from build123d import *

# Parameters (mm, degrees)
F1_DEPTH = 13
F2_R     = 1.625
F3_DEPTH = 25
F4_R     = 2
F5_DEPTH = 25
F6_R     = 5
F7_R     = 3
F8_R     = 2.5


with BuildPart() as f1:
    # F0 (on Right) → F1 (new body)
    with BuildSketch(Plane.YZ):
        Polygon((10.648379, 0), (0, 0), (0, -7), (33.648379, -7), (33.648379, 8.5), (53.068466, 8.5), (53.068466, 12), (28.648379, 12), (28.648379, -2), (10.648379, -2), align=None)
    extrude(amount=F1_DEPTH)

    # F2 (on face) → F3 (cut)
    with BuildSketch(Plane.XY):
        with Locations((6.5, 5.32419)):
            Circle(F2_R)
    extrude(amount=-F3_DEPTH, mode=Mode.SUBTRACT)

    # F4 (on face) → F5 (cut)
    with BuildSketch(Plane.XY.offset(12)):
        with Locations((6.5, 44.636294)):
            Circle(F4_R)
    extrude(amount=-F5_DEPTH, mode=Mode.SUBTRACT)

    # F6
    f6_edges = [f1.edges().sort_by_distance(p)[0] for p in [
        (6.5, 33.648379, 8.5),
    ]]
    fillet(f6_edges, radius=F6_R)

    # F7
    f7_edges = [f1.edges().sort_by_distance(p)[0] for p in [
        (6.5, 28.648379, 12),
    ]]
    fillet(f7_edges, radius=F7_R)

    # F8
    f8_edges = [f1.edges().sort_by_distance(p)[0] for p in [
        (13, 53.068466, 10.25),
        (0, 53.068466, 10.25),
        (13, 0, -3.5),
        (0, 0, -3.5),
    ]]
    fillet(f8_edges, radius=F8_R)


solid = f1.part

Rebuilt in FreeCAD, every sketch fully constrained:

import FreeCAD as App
import Part
import Sketcher
Q = App.Units.Quantity


def edges_at(feature, points):
    """Names of the edges that pass closest to the given points."""
    edges = feature.Shape.Edges
    near = lambda p: min(range(len(edges)), key=lambda i: edges[i].distToShape(Part.Vertex(*p))[0])
    return sorted({f"Edge{near(p) + 1}" for p in points})

doc = App.newDocument("Part")
body = doc.addObject("PartDesign::Body", "Body")

sketch1 = body.newObject("Sketcher::SketchObject", "Sketch")
sketch1.AttachmentSupport = (doc.getObject("YZ_Plane"), [""])
sketch1.MapMode = "FlatFace"
sketch1.addGeometry([
    Part.LineSegment(App.Vector(10.648379, 0, 0), App.Vector(0, 0, 0)),
    Part.LineSegment(App.Vector(0, 0, 0), App.Vector(0, -7, 0)),
    Part.LineSegment(App.Vector(0, -7, 0), App.Vector(33.648379, -7, 0)),
    Part.LineSegment(App.Vector(33.648379, -7, 0), App.Vector(33.648379, 8.5, 0)),
    Part.LineSegment(App.Vector(33.648379, 8.5, 0), App.Vector(53.068466, 8.5, 0)),
    Part.LineSegment(App.Vector(53.068466, 8.5, 0), App.Vector(53.068466, 12, 0)),
    Part.LineSegment(App.Vector(53.068466, 12, 0), App.Vector(28.648379, 12, 0)),
    Part.LineSegment(App.Vector(28.648379, 12, 0), App.Vector(28.648379, -2, 0)),
    Part.LineSegment(App.Vector(28.648379, -2, 0), App.Vector(10.648379, -2, 0)),
    Part.LineSegment(App.Vector(10.648379, -2, 0), App.Vector(10.648379, 0, 0)),
], False)
sketch1.addConstraint([
    Sketcher.Constraint("Coincident", 0, 2, 1, 1),
    Sketcher.Constraint("Coincident", 1, 2, 2, 1),
    Sketcher.Constraint("Coincident", 2, 2, 3, 1),
    Sketcher.Constraint("Coincident", 3, 2, 4, 1),
    Sketcher.Constraint("Coincident", 4, 2, 5, 1),
    Sketcher.Constraint("Coincident", 5, 2, 6, 1),
    Sketcher.Constraint("Coincident", 6, 2, 7, 1),
    Sketcher.Constraint("Coincident", 7, 2, 8, 1),
    Sketcher.Constraint("Coincident", 8, 2, 9, 1),
    Sketcher.Constraint("Coincident", 9, 2, 0, 1),
    Sketcher.Constraint("Horizontal", 0),
    Sketcher.Constraint("Vertical", 1),
    Sketcher.Constraint("Horizontal", 2),
    Sketcher.Constraint("Vertical", 3),
    Sketcher.Constraint("Horizontal", 4),
    Sketcher.Constraint("Vertical", 5),
    Sketcher.Constraint("Horizontal", 6),
    Sketcher.Constraint("Vertical", 7),
    Sketcher.Constraint("Horizontal", 8),
    Sketcher.Constraint("Vertical", 9),
    Sketcher.Constraint("Coincident", 0, 2, -1, 1),
    Sketcher.Constraint("DistanceX", 8, 2, 8, 1, Q("18 mm")),
    Sketcher.Constraint("DistanceY", 1, 2, 1, 1, Q("7 mm")),
    Sketcher.Constraint("DistanceY", 7, 2, 7, 1, Q("14 mm")),
    Sketcher.Constraint("DistanceY", 9, 1, 9, 2, Q("2 mm")),
    Sketcher.Constraint("DistanceY", 3, 1, 3, 2, Q("15.5 mm")),
    Sketcher.Constraint("DistanceX", 6, 2, 3, 2, Q("5 mm")),
    Sketcher.Constraint("DistanceX", 0, 2, 0, 1, Q("10.648379 mm")),
    Sketcher.Constraint("DistanceX", 4, 1, 4, 2, Q("19.420087 mm")),
])
pad1 = body.newObject("PartDesign::Pad", "Pad")
pad1.Profile = sketch1
pad1.Length = 13

sketch2 = body.newObject("Sketcher::SketchObject", "Sketch001")
sketch2.AttachmentSupport = (doc.getObject("XY_Plane"), [""])
sketch2.MapMode = "FlatFace"
sketch2.addGeometry(Part.Circle(App.Vector(6.5, 5.32419, 0), App.Vector(0, 0, 1), 1.625), False)
sketch2.addConstraint([
    Sketcher.Constraint("Diameter", 0, Q("3.25 mm")),
    Sketcher.Constraint("DistanceX", -1, 1, 0, 3, Q("6.5 mm")),
    Sketcher.Constraint("DistanceY", -1, 1, 0, 3, Q("5.32419 mm")),
])
pocket1 = body.newObject("PartDesign::Pocket", "Pocket")
pocket1.Profile = sketch2
pocket1.Length = 25

sketch3 = body.newObject("Sketcher::SketchObject", "Sketch002")
sketch3.AttachmentSupport = (doc.getObject("XY_Plane"), [""])
sketch3.MapMode = "FlatFace"
sketch3.AttachmentOffset = App.Placement(App.Vector(0, 0, 12), App.Rotation())
sketch3.addGeometry(Part.Circle(App.Vector(6.5, 44.636294, 0), App.Vector(0, 0, 1), 2), False)
sketch3.addConstraint([
    Sketcher.Constraint("Diameter", 0, Q("4 mm")),
    Sketcher.Constraint("DistanceX", -1, 1, 0, 3, Q("6.5 mm")),
    Sketcher.Constraint("DistanceY", -1, 1, 0, 3, Q("44.636294 mm")),
])
pocket2 = body.newObject("PartDesign::Pocket", "Pocket001")
pocket2.Profile = sketch3
pocket2.Length = 25
doc.recompute()

fillet = body.newObject("PartDesign::Fillet", "Fillet")
fillet.Base = (pocket2, edges_at(pocket2, [(6.5, 33.648, 8.5)]))
fillet.Radius = 5
doc.recompute()

fillet2 = body.newObject("PartDesign::Fillet", "Fillet001")
fillet2.Base = (fillet, edges_at(fillet, [(6.5, 28.648, 12)]))
fillet2.Radius = 3
doc.recompute()

fillet3 = body.newObject("PartDesign::Fillet", "Fillet002")
fillet3.Base = (fillet2, edges_at(fillet2, [
    (13, 53.068, 10.25),
    (0, 53.068, 10.25),
    (13, 0, -3.5),
    (0, 0, -3.5),
]))
fillet3.Radius = 2.5

doc.recompute()
